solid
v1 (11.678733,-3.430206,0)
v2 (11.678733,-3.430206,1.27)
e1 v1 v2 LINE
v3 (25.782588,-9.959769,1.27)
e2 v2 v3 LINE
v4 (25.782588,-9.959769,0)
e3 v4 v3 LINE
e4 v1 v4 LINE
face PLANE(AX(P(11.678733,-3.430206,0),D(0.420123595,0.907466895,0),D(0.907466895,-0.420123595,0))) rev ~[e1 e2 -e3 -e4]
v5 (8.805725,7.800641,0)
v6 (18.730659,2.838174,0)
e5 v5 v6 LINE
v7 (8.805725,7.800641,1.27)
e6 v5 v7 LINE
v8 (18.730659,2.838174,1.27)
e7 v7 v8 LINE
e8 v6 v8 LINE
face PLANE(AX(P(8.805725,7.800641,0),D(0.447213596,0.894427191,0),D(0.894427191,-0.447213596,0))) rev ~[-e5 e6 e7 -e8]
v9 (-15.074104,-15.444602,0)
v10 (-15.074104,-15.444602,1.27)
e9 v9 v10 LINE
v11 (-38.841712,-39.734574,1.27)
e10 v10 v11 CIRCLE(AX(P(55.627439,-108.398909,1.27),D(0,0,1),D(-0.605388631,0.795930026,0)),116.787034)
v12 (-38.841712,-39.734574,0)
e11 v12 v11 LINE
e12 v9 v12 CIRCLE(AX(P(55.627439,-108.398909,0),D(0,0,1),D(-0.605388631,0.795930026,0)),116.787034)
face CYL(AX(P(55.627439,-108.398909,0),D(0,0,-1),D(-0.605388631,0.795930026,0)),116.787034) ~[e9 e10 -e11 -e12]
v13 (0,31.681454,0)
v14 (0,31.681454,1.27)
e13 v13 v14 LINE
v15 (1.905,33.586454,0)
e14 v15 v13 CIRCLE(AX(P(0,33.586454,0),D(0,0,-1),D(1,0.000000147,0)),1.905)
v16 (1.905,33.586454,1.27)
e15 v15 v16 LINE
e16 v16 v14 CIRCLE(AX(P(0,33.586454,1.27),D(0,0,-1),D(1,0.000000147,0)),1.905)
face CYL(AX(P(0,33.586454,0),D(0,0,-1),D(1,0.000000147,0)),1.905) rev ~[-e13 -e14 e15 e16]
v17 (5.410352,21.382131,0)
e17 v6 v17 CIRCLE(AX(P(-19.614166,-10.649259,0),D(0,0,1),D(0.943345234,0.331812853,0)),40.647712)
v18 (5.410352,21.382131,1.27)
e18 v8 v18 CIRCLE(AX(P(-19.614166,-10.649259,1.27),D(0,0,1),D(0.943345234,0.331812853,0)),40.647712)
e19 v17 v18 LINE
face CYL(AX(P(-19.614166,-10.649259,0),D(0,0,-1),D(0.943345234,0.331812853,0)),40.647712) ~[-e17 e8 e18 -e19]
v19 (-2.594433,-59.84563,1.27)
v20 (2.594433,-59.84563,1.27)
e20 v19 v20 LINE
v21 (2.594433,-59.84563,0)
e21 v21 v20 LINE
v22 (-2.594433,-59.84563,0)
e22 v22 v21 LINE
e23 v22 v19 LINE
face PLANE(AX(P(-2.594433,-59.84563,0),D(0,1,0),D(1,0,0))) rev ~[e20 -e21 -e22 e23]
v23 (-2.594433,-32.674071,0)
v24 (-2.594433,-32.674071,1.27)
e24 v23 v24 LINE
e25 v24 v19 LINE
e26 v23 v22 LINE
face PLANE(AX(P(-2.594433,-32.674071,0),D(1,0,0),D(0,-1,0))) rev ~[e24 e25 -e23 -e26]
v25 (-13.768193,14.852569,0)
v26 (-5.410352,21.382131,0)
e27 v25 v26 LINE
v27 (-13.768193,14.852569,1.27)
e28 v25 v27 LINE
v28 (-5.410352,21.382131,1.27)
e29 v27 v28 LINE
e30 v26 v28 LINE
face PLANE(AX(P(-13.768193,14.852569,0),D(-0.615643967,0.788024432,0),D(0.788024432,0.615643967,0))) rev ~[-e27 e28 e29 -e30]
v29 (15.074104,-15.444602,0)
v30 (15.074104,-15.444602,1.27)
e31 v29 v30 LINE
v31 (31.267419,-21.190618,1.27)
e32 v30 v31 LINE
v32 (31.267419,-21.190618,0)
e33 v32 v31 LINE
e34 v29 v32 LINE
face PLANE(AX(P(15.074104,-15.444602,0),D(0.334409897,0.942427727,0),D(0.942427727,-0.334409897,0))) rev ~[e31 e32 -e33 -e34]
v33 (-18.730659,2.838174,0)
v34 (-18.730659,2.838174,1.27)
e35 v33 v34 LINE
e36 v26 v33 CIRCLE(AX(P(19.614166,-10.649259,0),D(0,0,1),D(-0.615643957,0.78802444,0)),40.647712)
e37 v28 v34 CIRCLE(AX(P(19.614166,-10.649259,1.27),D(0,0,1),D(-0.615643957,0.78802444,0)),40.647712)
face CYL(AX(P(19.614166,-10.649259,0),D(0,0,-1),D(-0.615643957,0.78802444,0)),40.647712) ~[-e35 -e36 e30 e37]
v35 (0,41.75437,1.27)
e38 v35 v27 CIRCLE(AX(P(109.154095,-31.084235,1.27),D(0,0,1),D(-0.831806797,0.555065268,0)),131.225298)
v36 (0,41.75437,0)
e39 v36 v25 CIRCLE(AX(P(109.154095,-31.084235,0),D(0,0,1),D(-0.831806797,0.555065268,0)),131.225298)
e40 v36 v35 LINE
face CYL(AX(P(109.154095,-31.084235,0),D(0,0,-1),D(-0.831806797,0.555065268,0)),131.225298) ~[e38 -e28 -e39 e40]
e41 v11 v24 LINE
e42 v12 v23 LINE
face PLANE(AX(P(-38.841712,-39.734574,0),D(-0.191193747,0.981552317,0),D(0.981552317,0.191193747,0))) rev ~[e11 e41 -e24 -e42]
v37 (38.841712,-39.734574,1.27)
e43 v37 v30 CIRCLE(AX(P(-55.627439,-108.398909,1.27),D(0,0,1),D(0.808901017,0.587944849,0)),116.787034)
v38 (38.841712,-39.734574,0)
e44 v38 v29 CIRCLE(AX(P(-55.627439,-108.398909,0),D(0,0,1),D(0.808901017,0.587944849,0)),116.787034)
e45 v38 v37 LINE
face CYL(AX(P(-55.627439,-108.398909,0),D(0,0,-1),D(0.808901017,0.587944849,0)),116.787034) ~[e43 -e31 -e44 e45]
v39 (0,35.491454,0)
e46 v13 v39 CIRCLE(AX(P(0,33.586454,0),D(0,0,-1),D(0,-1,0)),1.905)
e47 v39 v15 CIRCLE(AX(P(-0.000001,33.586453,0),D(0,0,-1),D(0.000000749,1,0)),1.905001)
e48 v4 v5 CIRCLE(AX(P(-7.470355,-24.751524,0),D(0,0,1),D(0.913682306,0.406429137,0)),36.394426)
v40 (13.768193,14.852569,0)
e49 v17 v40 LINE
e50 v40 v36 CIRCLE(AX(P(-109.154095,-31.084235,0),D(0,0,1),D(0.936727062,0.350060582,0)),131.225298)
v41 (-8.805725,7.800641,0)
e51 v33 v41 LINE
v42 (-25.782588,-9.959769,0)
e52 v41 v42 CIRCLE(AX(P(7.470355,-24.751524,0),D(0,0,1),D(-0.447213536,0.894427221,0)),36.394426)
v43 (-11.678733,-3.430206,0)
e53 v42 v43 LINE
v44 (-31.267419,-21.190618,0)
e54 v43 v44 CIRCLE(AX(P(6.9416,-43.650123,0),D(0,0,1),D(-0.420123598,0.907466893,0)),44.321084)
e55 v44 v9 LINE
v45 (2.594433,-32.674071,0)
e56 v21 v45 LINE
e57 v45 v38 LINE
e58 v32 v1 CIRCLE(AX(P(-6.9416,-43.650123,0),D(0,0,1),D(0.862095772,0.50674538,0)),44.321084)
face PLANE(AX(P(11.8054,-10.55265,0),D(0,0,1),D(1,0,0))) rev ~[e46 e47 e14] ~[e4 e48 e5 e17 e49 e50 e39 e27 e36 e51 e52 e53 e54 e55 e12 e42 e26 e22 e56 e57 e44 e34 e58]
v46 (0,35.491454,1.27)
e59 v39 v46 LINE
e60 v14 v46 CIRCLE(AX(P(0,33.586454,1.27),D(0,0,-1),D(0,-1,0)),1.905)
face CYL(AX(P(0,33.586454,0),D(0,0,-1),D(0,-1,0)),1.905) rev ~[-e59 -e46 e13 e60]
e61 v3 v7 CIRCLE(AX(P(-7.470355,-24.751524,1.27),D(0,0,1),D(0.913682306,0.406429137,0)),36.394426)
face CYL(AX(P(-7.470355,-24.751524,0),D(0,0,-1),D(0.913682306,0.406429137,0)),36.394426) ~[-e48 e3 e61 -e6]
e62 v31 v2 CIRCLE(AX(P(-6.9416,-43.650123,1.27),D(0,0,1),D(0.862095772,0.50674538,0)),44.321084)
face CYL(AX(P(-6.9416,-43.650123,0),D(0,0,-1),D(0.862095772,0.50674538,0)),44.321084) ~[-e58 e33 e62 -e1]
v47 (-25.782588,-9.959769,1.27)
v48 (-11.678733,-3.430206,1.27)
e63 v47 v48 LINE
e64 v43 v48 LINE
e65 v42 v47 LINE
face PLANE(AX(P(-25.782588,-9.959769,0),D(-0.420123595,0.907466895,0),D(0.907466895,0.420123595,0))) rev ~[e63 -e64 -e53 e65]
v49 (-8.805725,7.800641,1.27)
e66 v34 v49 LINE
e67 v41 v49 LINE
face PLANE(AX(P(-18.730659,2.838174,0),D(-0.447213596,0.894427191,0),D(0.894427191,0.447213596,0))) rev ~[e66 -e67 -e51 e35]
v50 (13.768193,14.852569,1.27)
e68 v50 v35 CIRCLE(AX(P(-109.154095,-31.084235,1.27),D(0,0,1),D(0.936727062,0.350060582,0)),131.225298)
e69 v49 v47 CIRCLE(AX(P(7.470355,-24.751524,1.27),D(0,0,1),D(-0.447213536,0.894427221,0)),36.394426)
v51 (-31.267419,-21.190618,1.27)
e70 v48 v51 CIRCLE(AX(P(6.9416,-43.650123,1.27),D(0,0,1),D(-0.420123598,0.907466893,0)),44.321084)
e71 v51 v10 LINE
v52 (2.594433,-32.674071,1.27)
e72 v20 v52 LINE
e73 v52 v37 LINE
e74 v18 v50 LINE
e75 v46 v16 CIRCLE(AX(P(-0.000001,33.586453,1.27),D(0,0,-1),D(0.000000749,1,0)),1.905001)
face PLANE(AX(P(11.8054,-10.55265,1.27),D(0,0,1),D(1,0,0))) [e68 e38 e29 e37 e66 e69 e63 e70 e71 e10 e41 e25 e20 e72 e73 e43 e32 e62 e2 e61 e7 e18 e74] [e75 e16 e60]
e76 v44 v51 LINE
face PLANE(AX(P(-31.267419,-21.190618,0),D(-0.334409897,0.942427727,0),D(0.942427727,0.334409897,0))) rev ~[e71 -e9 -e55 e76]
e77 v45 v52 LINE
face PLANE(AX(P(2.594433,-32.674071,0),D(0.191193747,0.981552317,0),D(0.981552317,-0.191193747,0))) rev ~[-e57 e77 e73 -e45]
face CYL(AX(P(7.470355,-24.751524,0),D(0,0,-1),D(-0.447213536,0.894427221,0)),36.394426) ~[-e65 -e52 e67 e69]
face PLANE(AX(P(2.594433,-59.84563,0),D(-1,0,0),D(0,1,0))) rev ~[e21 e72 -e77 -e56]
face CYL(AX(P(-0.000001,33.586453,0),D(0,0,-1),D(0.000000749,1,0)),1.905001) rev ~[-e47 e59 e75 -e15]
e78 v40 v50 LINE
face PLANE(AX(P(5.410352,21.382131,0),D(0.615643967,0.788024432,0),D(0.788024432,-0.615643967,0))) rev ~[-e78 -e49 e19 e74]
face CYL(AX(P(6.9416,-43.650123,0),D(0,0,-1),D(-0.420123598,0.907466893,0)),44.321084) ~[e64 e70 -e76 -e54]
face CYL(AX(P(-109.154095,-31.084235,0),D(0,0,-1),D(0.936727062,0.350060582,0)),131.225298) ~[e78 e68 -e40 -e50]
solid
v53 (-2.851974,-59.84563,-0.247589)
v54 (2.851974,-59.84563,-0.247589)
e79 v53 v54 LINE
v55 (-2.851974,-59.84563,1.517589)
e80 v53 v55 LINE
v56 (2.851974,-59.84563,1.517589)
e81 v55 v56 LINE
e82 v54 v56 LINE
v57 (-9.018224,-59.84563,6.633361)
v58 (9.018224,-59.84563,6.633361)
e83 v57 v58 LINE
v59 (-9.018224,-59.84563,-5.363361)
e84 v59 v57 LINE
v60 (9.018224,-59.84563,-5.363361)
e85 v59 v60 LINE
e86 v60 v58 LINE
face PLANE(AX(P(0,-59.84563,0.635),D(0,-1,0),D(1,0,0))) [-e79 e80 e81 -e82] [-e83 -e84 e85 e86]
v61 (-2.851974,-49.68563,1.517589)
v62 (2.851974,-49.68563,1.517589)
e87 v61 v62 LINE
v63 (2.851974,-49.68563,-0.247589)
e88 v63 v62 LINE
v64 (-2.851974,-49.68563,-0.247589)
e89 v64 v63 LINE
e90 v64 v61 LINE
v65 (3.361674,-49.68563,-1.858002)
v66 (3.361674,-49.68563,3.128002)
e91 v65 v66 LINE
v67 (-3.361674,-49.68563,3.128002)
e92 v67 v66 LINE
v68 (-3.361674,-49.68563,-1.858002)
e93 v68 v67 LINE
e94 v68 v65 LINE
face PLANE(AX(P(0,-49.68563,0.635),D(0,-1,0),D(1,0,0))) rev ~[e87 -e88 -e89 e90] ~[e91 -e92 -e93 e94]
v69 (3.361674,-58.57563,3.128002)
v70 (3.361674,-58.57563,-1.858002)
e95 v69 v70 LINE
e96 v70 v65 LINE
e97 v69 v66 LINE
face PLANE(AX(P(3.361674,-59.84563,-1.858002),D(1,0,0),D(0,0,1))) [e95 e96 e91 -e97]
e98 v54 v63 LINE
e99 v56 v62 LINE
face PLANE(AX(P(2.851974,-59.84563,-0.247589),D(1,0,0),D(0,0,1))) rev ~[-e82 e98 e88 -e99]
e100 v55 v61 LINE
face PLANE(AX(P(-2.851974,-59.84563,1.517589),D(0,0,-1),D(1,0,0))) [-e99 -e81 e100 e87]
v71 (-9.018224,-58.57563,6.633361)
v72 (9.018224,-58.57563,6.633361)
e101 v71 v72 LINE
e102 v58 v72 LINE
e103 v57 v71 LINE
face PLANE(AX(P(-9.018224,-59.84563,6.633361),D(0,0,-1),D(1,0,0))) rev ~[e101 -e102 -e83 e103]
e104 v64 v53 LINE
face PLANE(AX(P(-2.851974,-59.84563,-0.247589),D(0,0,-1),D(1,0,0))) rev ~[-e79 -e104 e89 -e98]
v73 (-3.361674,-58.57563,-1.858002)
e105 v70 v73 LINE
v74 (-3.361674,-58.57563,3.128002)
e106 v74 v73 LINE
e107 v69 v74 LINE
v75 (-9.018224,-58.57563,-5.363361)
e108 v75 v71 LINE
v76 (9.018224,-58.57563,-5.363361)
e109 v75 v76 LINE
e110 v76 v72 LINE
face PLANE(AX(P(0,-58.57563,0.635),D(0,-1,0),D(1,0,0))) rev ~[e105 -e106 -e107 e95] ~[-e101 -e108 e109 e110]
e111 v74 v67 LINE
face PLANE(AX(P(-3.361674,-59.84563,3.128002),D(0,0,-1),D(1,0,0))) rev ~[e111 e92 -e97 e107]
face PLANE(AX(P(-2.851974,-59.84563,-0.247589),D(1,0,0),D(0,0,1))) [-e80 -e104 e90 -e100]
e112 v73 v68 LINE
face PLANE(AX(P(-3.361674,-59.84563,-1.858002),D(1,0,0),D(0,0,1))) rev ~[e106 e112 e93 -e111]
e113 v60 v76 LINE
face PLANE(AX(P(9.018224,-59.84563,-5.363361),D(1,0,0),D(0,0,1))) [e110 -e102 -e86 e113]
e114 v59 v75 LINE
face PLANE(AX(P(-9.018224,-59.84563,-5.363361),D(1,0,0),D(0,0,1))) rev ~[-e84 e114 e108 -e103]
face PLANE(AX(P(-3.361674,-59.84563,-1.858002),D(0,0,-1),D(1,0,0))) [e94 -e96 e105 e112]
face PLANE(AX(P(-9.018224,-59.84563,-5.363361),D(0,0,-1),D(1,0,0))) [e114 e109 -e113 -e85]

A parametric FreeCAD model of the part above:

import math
import FreeCAD as App
import Part
import Sketcher
from FreeCAD import Vector
Q = App.Units.Quantity


def add_polygon(sketch, points):
    """Adds a closed chain of lines whose ends are joined by coincident constraints."""
    first, n = sketch.GeometryCount, len(points)
    for a, b in zip(points, points[1:] + points[:1]):
        sketch.addGeometry(Part.LineSegment(App.Vector(*a, 0), App.Vector(*b, 0)), False)
    for i in range(n):
        sketch.addConstraint(Sketcher.Constraint("Coincident", first + i, 2, first + (i + 1) % n, 1))

doc = App.newDocument("Part")
body = doc.addObject("PartDesign::Body", "Body")

sketch1 = body.newObject("Sketcher::SketchObject", "Sketch")
sketch1.AttachmentSupport = (doc.getObject("XY_Plane"), [""])
sketch1.MapMode = "FlatFace"
sketch1.addGeometry([
    Part.LineSegment(Vector(5.4, 21.4, 0), Vector(13.8, 14.9, 0)),
    Part.ArcOfCircle(Part.Circle(Vector(-109.2, -31.1, 0), Vector(0, 0, 1), 131.2), math.radians(20.49), math.radians(33.72)),
    Part.ArcOfCircle(Part.Circle(Vector(109.2, -31.1, 0), Vector(0, 0, 1), 131.2), math.radians(146.28), math.radians(159.51)),
    Part.LineSegment(Vector(-13.8, 14.9, 0), Vector(-5.4, 21.4, 0)),
    Part.ArcOfCircle(Part.Circle(Vector(19.6, -10.6, 0), Vector(0, 0, 1), 40.6), math.radians(128), math.radians(161)),
    Part.LineSegment(Vector(-18.7, 2.8, 0), Vector(-8.8, 7.8, 0)),
    Part.ArcOfCircle(Part.Circle(Vector(7.5, -24.8, 0), Vector(0, 0, 1), 36.4), math.radians(117), math.radians(156)),
    Part.LineSegment(Vector(-25.8, -10, 0), Vector(-11.7, -3.4, 0)),
    Part.ArcOfCircle(Part.Circle(Vector(6.9, -43.7, 0), Vector(0, 0, 1), 44.3), math.radians(115), math.radians(150)),
    Part.LineSegment(Vector(-31.3, -21.2, 0), Vector(-15.1, -15.4, 0)),
    Part.ArcOfCircle(Part.Circle(Vector(55.6, -108.4, 0), Vector(0, 0, 1), 116.8), math.radians(127.26), math.radians(143.99)),
    Part.LineSegment(Vector(-38.8, -39.7, 0), Vector(-2.6, -32.7, 0)),
    Part.LineSegment(Vector(-2.6, -32.7, 0), Vector(-2.6, -59.8, 0)),
    Part.LineSegment(Vector(-2.6, -59.8, 0), Vector(2.6, -59.8, 0)),
    Part.LineSegment(Vector(2.6, -59.8, 0), Vector(2.6, -32.7, 0)),
    Part.LineSegment(Vector(2.6, -32.7, 0), Vector(38.8, -39.7, 0)),
    Part.ArcOfCircle(Part.Circle(Vector(-55.6, -108.4, 0), Vector(0, 0, 1), 116.8), math.radians(36.01), math.radians(52.74)),
    Part.LineSegment(Vector(15.1, -15.4, 0), Vector(31.3, -21.2, 0)),
    Part.ArcOfCircle(Part.Circle(Vector(-6.9, -43.7, 0), Vector(0, 0, 1), 44.3), math.radians(30), math.radians(65)),
    Part.LineSegment(Vector(11.7, -3.4, 0), Vector(25.8, -10, 0)),
    Part.ArcOfCircle(Part.Circle(Vector(-7.5, -24.8, 0), Vector(0, 0, 1), 36.4), math.radians(24), math.radians(63)),
    Part.LineSegment(Vector(8.8, 7.8, 0), Vector(18.7, 2.8, 0)),
    Part.ArcOfCircle(Part.Circle(Vector(-19.6, -10.6, 0), Vector(0, 0, 1), 40.6), math.radians(19), math.radians(52)),
    Part.ArcOfCircle(Part.Circle(Vector(0, 33.6, 0), Vector(0, 0, 1), 1.9), math.radians(-90), math.radians(0)),
    Part.ArcOfCircle(Part.Circle(Vector(0, 33.6, 0), Vector(0, 0, 1), 1.9), math.radians(90), math.radians(270)),
    Part.ArcOfCircle(Part.Circle(Vector(0, 33.6, 0), Vector(0, 0, 1), 1.9), math.radians(0), math.radians(90)),
], False)
sketch1.addConstraint([
    Sketcher.Constraint("Coincident", 0, 2, 1, 1),
    Sketcher.Constraint("Coincident", 1, 2, 2, 1),
    Sketcher.Constraint("Coincident", 2, 2, 3, 1),
    Sketcher.Constraint("Tangent", 3, 2, 4, 1),
    Sketcher.Constraint("Coincident", 4, 2, 5, 1),
    Sketcher.Constraint("Tangent", 5, 2, 6, 1),
    Sketcher.Constraint("Coincident", 6, 2, 7, 1),
    Sketcher.Constraint("Tangent", 7, 2, 8, 1),
    Sketcher.Constraint("Coincident", 8, 2, 9, 1),
    Sketcher.Constraint("Coincident", 9, 2, 10, 1),
    Sketcher.Constraint("Coincident", 10, 2, 11, 1),
    Sketcher.Constraint("Coincident", 11, 2, 12, 1),
    Sketcher.Constraint("Coincident", 12, 2, 13, 1),
    Sketcher.Constraint("Coincident", 13, 2, 14, 1),
    Sketcher.Constraint("Coincident", 14, 2, 15, 1),
    Sketcher.Constraint("Coincident", 15, 2, 16, 1),
    Sketcher.Constraint("Coincident", 16, 2, 17, 1),
    Sketcher.Constraint("Coincident", 17, 2, 18, 1),
    Sketcher.Constraint("Tangent", 18, 2, 19, 1),
    Sketcher.Constraint("Coincident", 19, 2, 20, 1),
    Sketcher.Constraint("Tangent", 20, 2, 21, 1),
    Sketcher.Constraint("Coincident", 21, 2, 22, 1),
    Sketcher.Constraint("Tangent", 22, 2, 0, 1),
    Sketcher.Constraint("Tangent", 23, 1, 24, 2),
    Sketcher.Constraint("Tangent", 24, 1, 25, 2),
    Sketcher.Constraint("Tangent", 25, 1, 23, 2),
    Sketcher.Constraint("Vertical", 12),
    Sketcher.Constraint("Horizontal", 13),
    Sketcher.Constraint("Vertical", 14),
    Sketcher.Constraint("Equal", 1, 2),
    Sketcher.Constraint("Equal", 10, 16),
    Sketcher.Constraint("Equal", 8, 18),
    Sketcher.Constraint("Equal", 6, 20),
    Sketcher.Constraint("Equal", 4, 22),
    Sketcher.Constraint("Symmetric", 1, 3, 2, 3, -2),
    Sketcher.Constraint("Symmetric", 10, 3, 16, 3, -2),
    Sketcher.Constraint("Symmetric", 8, 3, 18, 3, -2),
    Sketcher.Constraint("Symmetric", 6, 3, 20, 3, -2),
    Sketcher.Constraint("Symmetric", 4, 3, 22, 3, -2),
    Sketcher.Constraint("Symmetric", 11, 2, 14, 2, -2),
    Sketcher.Constraint("PointOnObject", 23, 3, -2),
    Sketcher.Constraint("PointOnObject", 23, 1, -2),
    Sketcher.Constraint("PointOnObject", 24, 1, -2),
    Sketcher.Constraint("Horizontal", 0, 2, 2, 2),
    Sketcher.Constraint("Horizontal", 10, 2, 15, 2),
    Sketcher.Constraint("Horizontal", 9, 2, 16, 2),
    Sketcher.Constraint("Horizontal", 8, 2, 17, 2),
    Sketcher.Constraint("Horizontal", 7, 2, 18, 2),
    Sketcher.Constraint("Horizontal", 5, 2, 20, 2),
    Sketcher.Constraint("Horizontal", 24, 3, 25, 1),
    Sketcher.Constraint("Radius", 23, Q("0.075 in")),
    Sketcher.Constraint("Radius", 4, 40.647712),
    Sketcher.Constraint("Radius", 1, 131.225298),
    Sketcher.Constraint("Radius", 6, 36.394426),
    Sketcher.Constraint("Radius", 8, 44.321084),
    Sketcher.Constraint("Radius", 10, 116.787034),
    Sketcher.Constraint("DistanceX", 18, 3, 6, 3, Q("0.5673998 in")),
    Sketcher.Constraint("DistanceY", 12, 2, 12, 1, 27.171559),
    Sketcher.Constraint("DistanceX", -1, 1, 8, 3, 6.9416),
    Sketcher.Constraint("DistanceY", 16, 2, -1, 1, 15.444602),
    Sketcher.Constraint("DistanceY", 8, 3, 6, 3, 18.898599),
    Sketcher.Constraint("DistanceY", 0, 2, 1, 2, 26.901801),
    Sketcher.Constraint("DistanceY", 20, 3, 4, 2, 27.589698),
    Sketcher.Constraint("DistanceY", 22, 3, 5, 2, 18.4499),
    Sketcher.Constraint("Distance", 0, 10.606068),
    Sketcher.Constraint("DistanceX", 13, 1, 13, 2, 5.188866),
    Sketcher.Constraint("DistanceY", 4, 3, -1, 1, 10.649259),
    Sketcher.Constraint("DistanceX", -1, 1, 10, 3, 55.627439),
    Sketcher.Constraint("DistanceY", 10, 3, -1, 1, 108.398909),
    Sketcher.Constraint("DistanceY", -1, 1, 0, 2, 14.852569),
    Sketcher.Constraint("DistanceX", 3, 2, -1, 1, 5.410352),
    Sketcher.Constraint("DistanceY", 6, 2, -1, 1, 9.959769),
    Sketcher.Constraint("DistanceX", 8, 2, -1, 1, 31.267419),
    Sketcher.Constraint("DistanceY", 11, 2, -1, 1, 32.674071),
    Sketcher.Constraint("DistanceY", 6, 3, 24, 3, 58.337978),
    Sketcher.Constraint("DistanceX", 10, 2, 18, 3, 31.900112),
])
pad1 = body.newObject("PartDesign::Pad", "Pad")
pad1.Profile = sketch1
pad1.Length = Q("0.05 in")
body2 = doc.addObject("PartDesign::Body", "Body001")

sketch2 = body2.newObject("Sketcher::SketchObject", "Sketch001")
sketch2.AttachmentSupport = (doc.getObject("XZ_Plane001"), [""])
sketch2.MapMode = "FlatFace"
sketch2.AttachmentOffset = App.Placement(Vector(0, 0, 59.84563), App.Rotation())
add_polygon(sketch2, [(-3.4, 3.1), (-3.4, -1.9), (3.4, -1.9), (3.4, 3.1)])
add_polygon(sketch2, [(2.9, -0.2), (-2.9, -0.2), (-2.9, 1.5), (2.9, 1.5)])
sketch2.addConstraint([
    Sketcher.Constraint("Vertical", 0),
    Sketcher.Constraint("Horizontal", 1),
    Sketcher.Constraint("Vertical", 2),
    Sketcher.Constraint("Horizontal", 3),
    Sketcher.Constraint("Horizontal", 4),
    Sketcher.Constraint("Vertical", 5),
    Sketcher.Constraint("Horizontal", 6),
    Sketcher.Constraint("Vertical", 7),
    Sketcher.Constraint("DistanceY", 5, 1, 5, 2, 1.765178),
    Sketcher.Constraint("DistanceY", 0, 2, -1, 1, 1.858002),
    Sketcher.Constraint("DistanceY", -1, 1, 2, 2, 3.128002),
    Sketcher.Constraint("DistanceX", 0, 2, 4, 2, 0.5097),
    Sketcher.Constraint("DistanceX", 6, 2, 2, 2, 0.5097),
    Sketcher.Constraint("DistanceX", 1, 1, 1, 2, 6.723348),
    Sketcher.Constraint("DistanceY", 4, 2, -1, 1, 0.247589),
    Sketcher.Constraint("DistanceX", 0, 2, -1, 1, 3.361674),
])
pad2 = body2.newObject("PartDesign::Pad", "Pad001")
pad2.Profile = sketch2
pad2.Length = Q("0.4 in")
pad2.Reversed = True

sketch3 = body2.newObject("Sketcher::SketchObject", "Sketch002")
sketch3.AttachmentSupport = (doc.getObject("XZ_Plane001"), [""])
sketch3.MapMode = "FlatFace"
sketch3.AttachmentOffset = App.Placement(Vector(0, 0, 59.84563), App.Rotation())
add_polygon(sketch3, [(-9, 6.6), (-9, -5.4), (9, -5.4), (9, 6.6)])
add_polygon(sketch3, [(2.9, -0.2), (-2.9, -0.2), (-2.9, 1.5), (2.9, 1.5)])
sketch3.addConstraint([
    Sketcher.Constraint("Vertical", 0),
    Sketcher.Constraint("Horizontal", 1),
    Sketcher.Constraint("Vertical", 2),
    Sketcher.Constraint("Horizontal", 3),
    Sketcher.Constraint("Horizontal", 4),
    Sketcher.Constraint("Vertical", 5),
    Sketcher.Constraint("Horizontal", 6),
    Sketcher.Constraint("Vertical", 7),
    Sketcher.Constraint("DistanceX", 1, 1, 1, 2, 18.036448),
    Sketcher.Constraint("DistanceY", 5, 1, 5, 2, 1.765178),
    Sketcher.Constraint("DistanceX", 4, 2, 4, 1, 5.703948),
    Sketcher.Constraint("DistanceY", 0, 2, 0, 1, 11.996722),
    Sketcher.Constraint("DistanceY", 0, 2, -1, 1, 5.363361),
    Sketcher.Constraint("DistanceY", 4, 2, -1, 1, 0.247589),
    Sketcher.Constraint("DistanceX", 0, 2, 4, 2, 6.16625),
    Sketcher.Constraint("DistanceX", 0, 2, -1, 1, 9.018224),
])
pad3 = body2.newObject("PartDesign::Pad", "Pad002")
pad3.Profile = sketch3
pad3.Length = Q("0.05 in")
pad3.Reversed = True

doc.recompute()
